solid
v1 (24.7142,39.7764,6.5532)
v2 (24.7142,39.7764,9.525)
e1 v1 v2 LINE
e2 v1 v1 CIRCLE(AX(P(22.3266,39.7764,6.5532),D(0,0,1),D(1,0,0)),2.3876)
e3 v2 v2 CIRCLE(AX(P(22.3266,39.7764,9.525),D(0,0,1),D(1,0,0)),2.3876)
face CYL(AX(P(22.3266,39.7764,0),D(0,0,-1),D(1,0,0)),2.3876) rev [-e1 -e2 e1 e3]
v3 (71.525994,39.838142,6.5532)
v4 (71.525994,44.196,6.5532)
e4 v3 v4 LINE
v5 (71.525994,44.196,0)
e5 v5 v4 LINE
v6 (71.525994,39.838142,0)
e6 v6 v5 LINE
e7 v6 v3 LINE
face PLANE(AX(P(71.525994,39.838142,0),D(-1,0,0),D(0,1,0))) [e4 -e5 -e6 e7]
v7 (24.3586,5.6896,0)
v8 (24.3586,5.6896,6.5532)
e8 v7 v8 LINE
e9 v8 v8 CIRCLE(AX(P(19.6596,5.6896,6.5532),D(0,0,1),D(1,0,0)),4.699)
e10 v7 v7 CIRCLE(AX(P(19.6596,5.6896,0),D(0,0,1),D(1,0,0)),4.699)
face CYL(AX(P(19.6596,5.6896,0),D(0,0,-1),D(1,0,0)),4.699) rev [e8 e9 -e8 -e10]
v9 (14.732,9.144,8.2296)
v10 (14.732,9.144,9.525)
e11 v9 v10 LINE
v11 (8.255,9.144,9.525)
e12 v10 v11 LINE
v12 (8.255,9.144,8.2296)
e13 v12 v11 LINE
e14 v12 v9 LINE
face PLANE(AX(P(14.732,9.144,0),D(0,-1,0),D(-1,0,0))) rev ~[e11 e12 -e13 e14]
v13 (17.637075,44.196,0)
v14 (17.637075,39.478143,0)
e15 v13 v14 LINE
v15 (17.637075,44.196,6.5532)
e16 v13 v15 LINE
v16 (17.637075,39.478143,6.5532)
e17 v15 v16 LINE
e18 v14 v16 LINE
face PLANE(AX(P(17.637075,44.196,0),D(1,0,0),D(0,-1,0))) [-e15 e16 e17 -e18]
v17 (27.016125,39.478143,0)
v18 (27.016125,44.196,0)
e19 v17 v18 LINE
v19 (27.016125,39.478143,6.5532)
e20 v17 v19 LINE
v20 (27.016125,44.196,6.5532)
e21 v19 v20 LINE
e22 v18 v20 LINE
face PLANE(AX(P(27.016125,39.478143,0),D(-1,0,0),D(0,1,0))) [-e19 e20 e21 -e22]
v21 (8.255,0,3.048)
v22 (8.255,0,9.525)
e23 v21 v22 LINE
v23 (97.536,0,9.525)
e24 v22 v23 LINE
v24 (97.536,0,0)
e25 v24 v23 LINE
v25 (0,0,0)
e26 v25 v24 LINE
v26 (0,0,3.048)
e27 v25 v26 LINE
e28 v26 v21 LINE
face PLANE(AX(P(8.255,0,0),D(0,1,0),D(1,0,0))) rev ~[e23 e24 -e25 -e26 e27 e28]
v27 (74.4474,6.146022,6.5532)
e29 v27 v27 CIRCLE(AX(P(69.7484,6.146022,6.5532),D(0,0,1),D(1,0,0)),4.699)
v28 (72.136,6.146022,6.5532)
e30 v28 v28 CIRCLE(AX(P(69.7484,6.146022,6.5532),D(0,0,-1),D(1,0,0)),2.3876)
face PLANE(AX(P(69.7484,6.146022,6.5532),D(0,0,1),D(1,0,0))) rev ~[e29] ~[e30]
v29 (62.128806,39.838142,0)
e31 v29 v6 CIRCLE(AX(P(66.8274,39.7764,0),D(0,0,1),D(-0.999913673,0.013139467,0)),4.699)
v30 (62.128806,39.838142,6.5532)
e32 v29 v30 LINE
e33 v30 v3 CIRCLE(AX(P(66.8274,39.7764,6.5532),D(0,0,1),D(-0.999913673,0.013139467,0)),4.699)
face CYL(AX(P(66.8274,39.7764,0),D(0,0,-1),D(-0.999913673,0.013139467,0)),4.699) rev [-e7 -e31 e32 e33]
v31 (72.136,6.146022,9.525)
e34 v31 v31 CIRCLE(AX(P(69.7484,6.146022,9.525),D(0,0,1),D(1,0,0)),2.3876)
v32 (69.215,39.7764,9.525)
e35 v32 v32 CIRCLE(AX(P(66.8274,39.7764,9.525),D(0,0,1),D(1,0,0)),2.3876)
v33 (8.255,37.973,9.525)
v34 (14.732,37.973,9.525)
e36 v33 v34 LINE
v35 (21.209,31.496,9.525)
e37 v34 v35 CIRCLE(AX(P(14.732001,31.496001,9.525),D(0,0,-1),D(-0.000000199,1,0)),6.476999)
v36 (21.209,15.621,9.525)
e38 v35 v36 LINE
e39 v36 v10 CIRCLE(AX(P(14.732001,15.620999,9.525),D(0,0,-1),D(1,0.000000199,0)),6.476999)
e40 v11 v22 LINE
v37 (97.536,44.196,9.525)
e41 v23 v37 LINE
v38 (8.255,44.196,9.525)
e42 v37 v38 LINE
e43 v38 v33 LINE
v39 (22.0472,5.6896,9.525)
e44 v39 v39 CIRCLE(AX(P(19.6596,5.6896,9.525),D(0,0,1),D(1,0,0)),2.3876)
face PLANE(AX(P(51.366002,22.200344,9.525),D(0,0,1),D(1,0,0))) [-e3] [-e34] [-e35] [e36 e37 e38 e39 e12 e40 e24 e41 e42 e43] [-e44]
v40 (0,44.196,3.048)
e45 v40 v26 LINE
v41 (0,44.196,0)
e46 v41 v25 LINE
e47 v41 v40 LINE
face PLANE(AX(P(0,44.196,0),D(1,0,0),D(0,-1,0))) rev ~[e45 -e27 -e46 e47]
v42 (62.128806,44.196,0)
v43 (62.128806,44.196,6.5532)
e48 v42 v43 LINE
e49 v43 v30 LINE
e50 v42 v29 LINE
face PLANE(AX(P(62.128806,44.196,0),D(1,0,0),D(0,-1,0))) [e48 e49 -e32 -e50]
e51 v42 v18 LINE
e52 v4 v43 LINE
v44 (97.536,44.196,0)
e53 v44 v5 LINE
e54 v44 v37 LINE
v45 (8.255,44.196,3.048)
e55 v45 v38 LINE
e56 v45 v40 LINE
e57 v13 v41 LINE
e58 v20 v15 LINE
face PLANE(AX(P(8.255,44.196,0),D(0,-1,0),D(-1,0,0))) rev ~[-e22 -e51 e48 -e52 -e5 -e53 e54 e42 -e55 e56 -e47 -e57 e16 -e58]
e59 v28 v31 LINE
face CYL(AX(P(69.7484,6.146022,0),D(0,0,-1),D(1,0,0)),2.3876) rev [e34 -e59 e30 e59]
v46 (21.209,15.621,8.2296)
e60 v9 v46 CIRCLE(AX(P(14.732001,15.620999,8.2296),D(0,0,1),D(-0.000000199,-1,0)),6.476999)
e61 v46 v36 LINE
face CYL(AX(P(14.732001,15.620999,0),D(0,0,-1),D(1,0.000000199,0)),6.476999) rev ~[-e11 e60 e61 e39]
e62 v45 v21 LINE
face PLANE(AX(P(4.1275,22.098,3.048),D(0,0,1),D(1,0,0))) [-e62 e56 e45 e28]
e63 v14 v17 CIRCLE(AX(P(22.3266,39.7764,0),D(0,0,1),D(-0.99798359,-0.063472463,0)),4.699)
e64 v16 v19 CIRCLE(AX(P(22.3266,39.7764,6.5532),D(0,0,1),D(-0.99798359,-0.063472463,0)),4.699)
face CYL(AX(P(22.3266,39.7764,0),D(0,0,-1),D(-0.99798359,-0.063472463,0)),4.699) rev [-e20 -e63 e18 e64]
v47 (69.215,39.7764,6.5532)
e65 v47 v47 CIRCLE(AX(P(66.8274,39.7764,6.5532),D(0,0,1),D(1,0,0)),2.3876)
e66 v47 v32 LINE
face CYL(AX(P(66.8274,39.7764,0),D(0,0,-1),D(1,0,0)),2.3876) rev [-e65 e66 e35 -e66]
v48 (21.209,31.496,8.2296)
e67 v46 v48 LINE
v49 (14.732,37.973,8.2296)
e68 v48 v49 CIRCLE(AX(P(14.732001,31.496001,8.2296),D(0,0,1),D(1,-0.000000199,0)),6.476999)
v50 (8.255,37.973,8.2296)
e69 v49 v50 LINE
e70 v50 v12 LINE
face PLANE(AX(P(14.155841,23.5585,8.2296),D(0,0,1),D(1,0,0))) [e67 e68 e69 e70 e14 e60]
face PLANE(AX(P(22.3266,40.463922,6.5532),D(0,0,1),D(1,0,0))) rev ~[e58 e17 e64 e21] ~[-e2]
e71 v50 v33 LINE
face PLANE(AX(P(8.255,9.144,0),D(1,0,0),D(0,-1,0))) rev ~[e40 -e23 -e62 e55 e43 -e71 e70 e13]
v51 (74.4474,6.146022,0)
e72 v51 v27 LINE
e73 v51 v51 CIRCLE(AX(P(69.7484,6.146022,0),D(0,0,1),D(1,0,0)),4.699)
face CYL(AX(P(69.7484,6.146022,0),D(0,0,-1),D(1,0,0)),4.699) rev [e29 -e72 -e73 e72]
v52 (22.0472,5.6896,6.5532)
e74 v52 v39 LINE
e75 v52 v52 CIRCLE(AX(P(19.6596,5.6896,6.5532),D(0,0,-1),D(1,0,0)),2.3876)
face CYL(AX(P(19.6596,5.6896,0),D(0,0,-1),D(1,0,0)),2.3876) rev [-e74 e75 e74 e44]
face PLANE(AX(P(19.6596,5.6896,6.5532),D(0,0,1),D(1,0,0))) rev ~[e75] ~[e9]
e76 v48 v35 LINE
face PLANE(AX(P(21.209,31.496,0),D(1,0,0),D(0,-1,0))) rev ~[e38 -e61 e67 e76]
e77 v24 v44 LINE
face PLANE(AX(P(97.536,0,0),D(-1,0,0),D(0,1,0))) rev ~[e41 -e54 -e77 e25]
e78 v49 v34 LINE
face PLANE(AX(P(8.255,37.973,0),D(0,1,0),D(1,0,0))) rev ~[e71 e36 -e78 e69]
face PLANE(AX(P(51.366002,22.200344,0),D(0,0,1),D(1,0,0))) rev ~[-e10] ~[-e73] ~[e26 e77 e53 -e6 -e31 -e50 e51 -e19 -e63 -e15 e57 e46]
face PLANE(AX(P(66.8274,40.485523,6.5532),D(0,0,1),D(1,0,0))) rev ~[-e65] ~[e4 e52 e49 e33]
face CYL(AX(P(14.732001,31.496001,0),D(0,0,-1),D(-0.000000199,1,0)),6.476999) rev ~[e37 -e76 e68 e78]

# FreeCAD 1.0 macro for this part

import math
import FreeCAD as App
import Part
import Sketcher
Q = App.Units.Quantity


def add_polygon(sketch, points):
    """Adds a closed chain of lines whose ends are joined by coincident constraints."""
    first, n = sketch.GeometryCount, len(points)
    for a, b in zip(points, points[1:] + points[:1]):
        sketch.addGeometry(Part.LineSegment(App.Vector(*a, 0), App.Vector(*b, 0)), False)
    for i in range(n):
        sketch.addConstraint(Sketcher.Constraint("Coincident", first + i, 2, first + (i + 1) % n, 1))

doc = App.newDocument("Part")
body = doc.addObject("PartDesign::Body", "Body")

# Sketch on XY plane
sketch1 = body.newObject("Sketcher::SketchObject", "Sketch")
sketch1.AttachmentSupport = (doc.getObject("XY_Plane"), [""])
sketch1.MapMode = "FlatFace"
add_polygon(sketch1, [(0, 44.196), (0, 0), (8.255, 0), (8.255, 44.196)])  # lines 0-3
sketch1.addConstraint([
    Sketcher.Constraint("Vertical", 0),
    Sketcher.Constraint("Horizontal", 1),
    Sketcher.Constraint("Vertical", 2),
    Sketcher.Constraint("Horizontal", 3),
    Sketcher.Constraint("Coincident", 0, 2, -1, 1),
    Sketcher.Constraint("DistanceY", 0, 2, 0, 1, Q("1.74 in")),
    Sketcher.Constraint("DistanceX", 1, 1, 1, 2, Q("0.325 in")),
])
pad1 = body.newObject("PartDesign::Pad", "Pad")
pad1.Profile = sketch1
pad1.Length = Q("0.12 in")

# Sketch on XY plane
sketch2 = body.newObject("Sketcher::SketchObject", "Sketch001")
sketch2.AttachmentSupport = (doc.getObject("XY_Plane"), [""])
sketch2.MapMode = "FlatFace"
sketch2.addGeometry([
    Part.LineSegment(App.Vector(8.255, 37.973, 0), App.Vector(8.255, 9.144, 0)),  # 0
    Part.LineSegment(App.Vector(8.255, 9.144, 0), App.Vector(14.732, 9.144, 0)),  # 1
    Part.ArcOfCircle(Part.Circle(App.Vector(14.732001, 15.620999, 0), App.Vector(0, 0, 1), 6.476999), math.radians(-90.000011), math.radians(0.000011)),  # 2
    Part.LineSegment(App.Vector(21.209, 15.621, 0), App.Vector(21.209, 31.496, 0)),  # 3
    Part.ArcOfCircle(Part.Circle(App.Vector(14.732001, 31.496001, 0), App.Vector(0, 0, 1), 6.476999), math.radians(-0.000011), math.radians(90.000011)),  # 4
    Part.LineSegment(App.Vector(14.732, 37.973, 0), App.Vector(8.255, 37.973, 0)),  # 5
], False)
sketch2.addConstraint([
    Sketcher.Constraint("Coincident", 0, 2, 1, 1),
    Sketcher.Constraint("Tangent", 1, 2, 2, 1),
    Sketcher.Constraint("Tangent", 2, 2, 3, 1),
    Sketcher.Constraint("Tangent", 3, 2, 4, 1),
    Sketcher.Constraint("Tangent", 4, 2, 5, 1),
    Sketcher.Constraint("Coincident", 5, 2, 0, 1),
    Sketcher.Constraint("Vertical", 0),
    Sketcher.Constraint("Horizontal", 1),
    Sketcher.Constraint("Vertical", 3),
    Sketcher.Constraint("Horizontal", 5),
    Sketcher.Constraint("Equal", 2, 4),
    Sketcher.Constraint("Radius", 2, Q("0.2549999 in")),
    Sketcher.Constraint("DistanceX", 1, 1, 1, 2, Q("0.255 in")),
    Sketcher.Constraint("DistanceY", 0, 2, 0, 1, Q("1.135 in")),
    Sketcher.Constraint("DistanceX", -1, 1, 2, 3, Q("0.5800001 in")),
    Sketcher.Constraint("DistanceY", -1, 1, 4, 3, Q("1.2400001 in")),
])
pad2 = body.newObject("PartDesign::Pad", "Pad001")
pad2.Profile = sketch2
pad2.Length = Q("0.324 in")

# Sketch on XY plane
sketch3 = body.newObject("Sketcher::SketchObject", "Sketch002")
sketch3.AttachmentSupport = (doc.getObject("XY_Plane"), [""])
sketch3.MapMode = "FlatFace"
sketch3.addGeometry([
    Part.LineSegment(App.Vector(8.255, 9.144, 0), App.Vector(8.255, 0, 0)),  # 0
    Part.LineSegment(App.Vector(8.255, 0, 0), App.Vector(97.536, 0, 0)),  # 1
    Part.LineSegment(App.Vector(97.536, 0, 0), App.Vector(97.536, 44.196, 0)),  # 2
    Part.LineSegment(App.Vector(97.536, 44.196, 0), App.Vector(8.255, 44.196, 0)),  # 3
    Part.LineSegment(App.Vector(8.255, 44.196, 0), App.Vector(8.255, 37.973, 0)),  # 4
    Part.LineSegment(App.Vector(8.255, 37.973, 0), App.Vector(14.732, 37.973, 0)),  # 5
    Part.ArcOfCircle(Part.Circle(App.Vector(14.732001, 31.496001, 0), App.Vector(0, 0, 1), 6.476999), math.radians(-0.000011), math.radians(90.000011)),  # 6
    Part.LineSegment(App.Vector(21.209, 31.496, 0), App.Vector(21.209, 15.621, 0)),  # 7
    Part.ArcOfCircle(Part.Circle(App.Vector(14.732001, 15.620999, 0), App.Vector(0, 0, 1), 6.476999), math.radians(-90.000011), math.radians(0.000011)),  # 8
    Part.LineSegment(App.Vector(14.732, 9.144, 0), App.Vector(8.255, 9.144, 0)),  # 9
    Part.Circle(App.Vector(19.6596, 5.6896, 0), App.Vector(0, 0, 1), 2.3876),  # 10
    Part.Circle(App.Vector(69.7484, 6.146022, 0), App.Vector(0, 0, 1), 2.3876),  # 11
    Part.Circle(App.Vector(22.3266, 39.7764, 0), App.Vector(0, 0, 1), 2.3876),  # 12
    Part.Circle(App.Vector(66.8274, 39.7764, 0), App.Vector(0, 0, 1), 2.3876),  # 13
], False)
sketch3.addConstraint([
    Sketcher.Constraint("Coincident", 0, 2, 1, 1),
    Sketcher.Constraint("Coincident", 1, 2, 2, 1),
    Sketcher.Constraint("Coincident", 2, 2, 3, 1),
    Sketcher.Constraint("Coincident", 3, 2, 4, 1),
    Sketcher.Constraint("Coincident", 4, 2, 5, 1),
    Sketcher.Constraint("Tangent", 5, 2, 6, 2),
    Sketcher.Constraint("Tangent", 6, 1, 7, 1),
    Sketcher.Constraint("Tangent", 7, 2, 8, 2),
    Sketcher.Constraint("Tangent", 8, 1, 9, 1),
    Sketcher.Constraint("Coincident", 9, 2, 0, 1),
    Sketcher.Constraint("Vertical", 0),
    Sketcher.Constraint("Horizontal", 1),
    Sketcher.Constraint("Vertical", 2),
    Sketcher.Constraint("Horizontal", 3),
    Sketcher.Constraint("Vertical", 4),
    Sketcher.Constraint("Horizontal", 5),
    Sketcher.Constraint("Vertical", 7),
    Sketcher.Constraint("Horizontal", 9),
    Sketcher.Constraint("Equal", 6, 8),
    Sketcher.Constraint("Equal", 10, 11),
    Sketcher.Constraint("Equal", 11, 12),
    Sketcher.Constraint("Equal", 12, 13),
    Sketcher.Constraint("PointOnObject", 0, 2, -1),
    Sketcher.Constraint("Horizontal", 12, 3, 13, 3),
    Sketcher.Constraint("Vertical", 0, 2, 3, 2),
    Sketcher.Constraint("Diameter", 10, Q("0.188 in")),
    Sketcher.Constraint("Radius", 6, Q("0.2549999 in")),
    Sketcher.Constraint("DistanceY", 0, 2, 0, 1, Q("0.36 in")),
    Sketcher.Constraint("DistanceY", 2, 1, 2, 2, Q("1.74 in")),
    Sketcher.Constraint("DistanceY", 6, 3, 2, 2, Q("0.4999999 in")),
    Sketcher.Constraint("DistanceX", 1, 1, 1, 2, Q("3.515 in")),
    Sketcher.Constraint("DistanceX", 5, 1, 5, 2, Q("0.255 in")),
    Sketcher.Constraint("DistanceX", -1, 1, 6, 3, Q("0.5800001 in")),
    Sketcher.Constraint("DistanceX", -1, 1, 10, 3, Q("0.774 in")),
    Sketcher.Constraint("DistanceY", -1, 1, 10, 3, Q("0.224 in")),
    Sketcher.Constraint("DistanceX", -1, 1, 11, 3, Q("2.746 in")),
    Sketcher.Constraint("DistanceX", -1, 1, 12, 3, Q("0.879 in")),
    Sketcher.Constraint("DistanceY", -1, 1, 12, 3, Q("1.566 in")),
    Sketcher.Constraint("DistanceX", -1, 1, 13, 3, Q("2.631 in")),
    Sketcher.Constraint("DistanceY", 10, 3, 11, 3, Q("0.456422 mm")),
])
pad3 = body.newObject("PartDesign::Pad", "Pad002")
pad3.Profile = sketch3
pad3.Length = Q("0.375 in")

# Sketch on XY plane
sketch4 = body.newObject("Sketcher::SketchObject", "Sketch003")
sketch4.AttachmentSupport = (doc.getObject("XY_Plane"), [""])
sketch4.MapMode = "FlatFace"
sketch4.addGeometry([
    Part.Circle(App.Vector(69.7484, 6.146022, 0), App.Vector(0, 0, 1), 4.699),  # 0
    Part.Circle(App.Vector(19.6596, 5.6896, 0), App.Vector(0, 0, 1), 4.699),  # 1
    Part.LineSegment(App.Vector(71.525994, 39.838142, 0), App.Vector(71.525994, 44.196, 0)),  # 2
    Part.LineSegment(App.Vector(71.525994, 44.196, 0), App.Vector(62.128806, 44.196, 0)),  # 3
    Part.LineSegment(App.Vector(62.128806, 44.196, 0), App.Vector(62.128806, 39.838142, 0)),  # 4
    Part.ArcOfCircle(Part.Circle(App.Vector(66.8274, 39.7764, 0), App.Vector(0, 0, 1), 4.699), math.radians(179.247142), math.radians(360.752858)),  # 5
    Part.Circle(App.Vector(66.8274, 39.7764, 0), App.Vector(0, 0, 1), 2.3876),  # 6
    Part.LineSegment(App.Vector(27.016125, 44.196, 0), App.Vector(17.637075, 44.196, 0)),  # 7
    Part.LineSegment(App.Vector(17.637075, 44.196, 0), App.Vector(17.637075, 39.478143, 0)),  # 8
    Part.ArcOfCircle(Part.Circle(App.Vector(22.3266, 39.7764, 0), App.Vector(0, 0, 1), 4.699), math.radians(-176.360849), math.radians(-3.639151)),  # 9
    Part.LineSegment(App.Vector(27.016125, 39.478143, 0), App.Vector(27.016125, 44.196, 0)),  # 10
    Part.Circle(App.Vector(22.3266, 39.7764, 0), App.Vector(0, 0, 1), 2.3876),  # 11
], False)
sketch4.addConstraint([
    Sketcher.Constraint("Coincident", 2, 2, 3, 1),
    Sketcher.Constraint("Coincident", 3, 2, 4, 1),
    Sketcher.Constraint("Coincident", 4, 2, 5, 1),
    Sketcher.Constraint("Coincident", 5, 2, 2, 1),
    Sketcher.Constraint("Coincident", 7, 2, 8, 1),
    Sketcher.Constraint("Coincident", 8, 2, 9, 1),
    Sketcher.Constraint("Coincident", 9, 2, 10, 1),
    Sketcher.Constraint("Coincident", 10, 2, 7, 1),
    Sketcher.Constraint("Vertical", 2),
    Sketcher.Constraint("Horizontal", 3),
    Sketcher.Constraint("Vertical", 4),
    Sketcher.Constraint("Horizontal", 7),
    Sketcher.Constraint("Vertical", 8),
    Sketcher.Constraint("Vertical", 10),
    Sketcher.Constraint("Coincident", 6, 3, 5, 3),
    Sketcher.Constraint("Coincident", 11, 3, 9, 3),
    Sketcher.Constraint("Equal", 0, 1),
    Sketcher.Constraint("Equal", 1, 5),
    Sketcher.Constraint("Equal", 5, 9),
    Sketcher.Constraint("Equal", 6, 11),
    Sketcher.Constraint("Horizontal", 6, 3, 9, 3),
    Sketcher.Constraint("Horizontal", 4, 2, 5, 2),
    Sketcher.Constraint("Horizontal", 3, 2, 7, 2),
    Sketcher.Constraint("Horizontal", 8, 2, 9, 2),
    Sketcher.Constraint("Diameter", 0, Q("0.37 in")),
    Sketcher.Constraint("Diameter", 6, Q("0.188 in")),
    Sketcher.Constraint("DistanceY", -1, 1, 2, 2, Q("1.74 in")),
    Sketcher.Constraint("DistanceX", -1, 1, 0, 3, Q("2.746 in")),
    Sketcher.Constraint("DistanceX", -1, 1, 1, 3, Q("0.774 in")),
    Sketcher.Constraint("DistanceY", -1, 1, 1, 3, Q("0.224 in")),
    Sketcher.Constraint("DistanceX", -1, 1, 5, 3, Q("2.631 in")),
    Sketcher.Constraint("DistanceY", -1, 1, 5, 3, Q("1.566 in")),
    Sketcher.Constraint("DistanceX", -1, 1, 9, 3, Q("0.879 in")),
    Sketcher.Constraint("DistanceX", 7, 2, 7, 1, Q("9.37905 mm")),
    Sketcher.Constraint("DistanceY", 2, 1, 2, 2, Q("4.357858 mm")),
    Sketcher.Constraint("DistanceY", 1, 3, 0, 3, Q("0.456422 mm")),
])
pocket1 = body.newObject("PartDesign::Pocket", "Pocket")
pocket1.Profile = sketch4
pocket1.Length = Q("0.258 in")
pocket1.Reversed = True

doc.recompute()
